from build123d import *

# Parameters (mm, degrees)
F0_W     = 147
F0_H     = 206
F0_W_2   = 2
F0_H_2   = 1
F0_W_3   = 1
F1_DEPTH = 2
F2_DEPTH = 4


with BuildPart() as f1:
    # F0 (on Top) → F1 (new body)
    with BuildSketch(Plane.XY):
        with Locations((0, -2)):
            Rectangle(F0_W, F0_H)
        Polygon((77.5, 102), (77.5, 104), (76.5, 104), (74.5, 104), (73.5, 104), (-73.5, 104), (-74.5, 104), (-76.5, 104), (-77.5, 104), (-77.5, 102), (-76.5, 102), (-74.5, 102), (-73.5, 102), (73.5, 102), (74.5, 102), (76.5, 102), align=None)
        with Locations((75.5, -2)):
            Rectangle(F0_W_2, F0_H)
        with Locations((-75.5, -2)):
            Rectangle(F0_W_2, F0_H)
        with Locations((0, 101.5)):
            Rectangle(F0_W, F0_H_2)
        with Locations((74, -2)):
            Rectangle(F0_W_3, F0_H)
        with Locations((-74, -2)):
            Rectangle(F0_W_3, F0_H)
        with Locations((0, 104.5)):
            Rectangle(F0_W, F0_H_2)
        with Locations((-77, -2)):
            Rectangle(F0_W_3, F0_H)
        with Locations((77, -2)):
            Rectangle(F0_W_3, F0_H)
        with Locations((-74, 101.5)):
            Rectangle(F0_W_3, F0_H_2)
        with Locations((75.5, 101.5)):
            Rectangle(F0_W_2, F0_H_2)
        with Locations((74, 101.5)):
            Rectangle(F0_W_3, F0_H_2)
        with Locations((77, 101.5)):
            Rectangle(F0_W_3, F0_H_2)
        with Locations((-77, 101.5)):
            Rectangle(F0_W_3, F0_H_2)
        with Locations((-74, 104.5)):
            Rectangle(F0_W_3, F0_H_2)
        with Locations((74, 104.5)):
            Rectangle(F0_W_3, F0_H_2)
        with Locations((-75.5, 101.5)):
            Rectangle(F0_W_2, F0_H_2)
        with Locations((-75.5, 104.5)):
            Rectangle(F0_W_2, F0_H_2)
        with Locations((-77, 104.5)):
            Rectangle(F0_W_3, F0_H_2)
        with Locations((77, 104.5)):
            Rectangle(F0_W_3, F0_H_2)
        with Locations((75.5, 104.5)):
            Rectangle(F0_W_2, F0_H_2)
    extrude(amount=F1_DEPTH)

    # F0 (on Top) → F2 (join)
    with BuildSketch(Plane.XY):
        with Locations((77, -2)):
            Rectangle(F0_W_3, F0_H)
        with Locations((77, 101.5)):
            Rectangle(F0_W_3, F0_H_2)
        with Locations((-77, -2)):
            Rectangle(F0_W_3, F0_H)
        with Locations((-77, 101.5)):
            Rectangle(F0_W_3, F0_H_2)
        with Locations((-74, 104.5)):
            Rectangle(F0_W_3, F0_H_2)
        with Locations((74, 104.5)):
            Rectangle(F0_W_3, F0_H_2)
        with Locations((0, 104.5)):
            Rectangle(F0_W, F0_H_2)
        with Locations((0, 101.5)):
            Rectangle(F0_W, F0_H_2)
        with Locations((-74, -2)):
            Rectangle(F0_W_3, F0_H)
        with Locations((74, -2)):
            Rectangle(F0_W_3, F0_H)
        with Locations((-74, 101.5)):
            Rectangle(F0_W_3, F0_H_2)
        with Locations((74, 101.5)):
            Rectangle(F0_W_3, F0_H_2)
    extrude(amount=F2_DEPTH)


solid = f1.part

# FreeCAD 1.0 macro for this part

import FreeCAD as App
import Part
import Sketcher
from FreeCAD import Vector
Q = App.Units.Quantity

doc = App.newDocument("Part")
body = doc.addObject("PartDesign::Body", "Body")

# Sketch on XY plane
sketch1 = body.newObject("Sketcher::SketchObject", "Sketch")
sketch1.AttachmentSupport = (doc.getObject("XY_Plane"), [""])
sketch1.MapMode = "FlatFace"
sketch1.addGeometry(Part.LineSegment(Vector(-78, 105, 0), Vector(-78, -105, 0)), False)
sketch1.addGeometry(Part.LineSegment(Vector(-78, -105, 0), Vector(78, -105, 0)), False)
sketch1.addGeometry(Part.LineSegment(Vector(78, -105, 0), Vector(78, 105, 0)), False)
sketch1.addGeometry(Part.LineSegment(Vector(78, 105, 0), Vector(-78, 105, 0)), False)
sketch1.addConstraint(Sketcher.Constraint("Coincident", 0, 2, 1, 1))
sketch1.addConstraint(Sketcher.Constraint("Coincident", 1, 2, 2, 1))
sketch1.addConstraint(Sketcher.Constraint("Coincident", 2, 2, 3, 1))
sketch1.addConstraint(Sketcher.Constraint("Coincident", 3, 2, 0, 1))
sketch1.addConstraint(Sketcher.Constraint("Vertical", 0))
sketch1.addConstraint(Sketcher.Constraint("Horizontal", 1))
sketch1.addConstraint(Sketcher.Constraint("Vertical", 2))
sketch1.addConstraint(Sketcher.Constraint("Horizontal", 3))
sketch1.addConstraint(Sketcher.Constraint("Symmetric", 0, 2, 2, 2, -1, 1))
sketch1.addConstraint(Sketcher.Constraint("DistanceX", 1, 1, 1, 2, Q("155 mm")))
sketch1.addConstraint(Sketcher.Constraint("DistanceY", 0, 2, 0, 1, Q("210 mm")))
pad1 = body.newObject("PartDesign::Pad", "Pad")
pad1.Profile = sketch1
pad1.Length = 2

# Sketch on XY plane
sketch2 = body.newObject("Sketcher::SketchObject", "Sketch001")
sketch2.AttachmentSupport = (doc.getObject("XY_Plane"), [""])
sketch2.MapMode = "FlatFace"
sketch2.addGeometry(Part.LineSegment(Vector(76.5, -105, 0), Vector(77.5, -105, 0)), False)
sketch2.addGeometry(Part.LineSegment(Vector(77.5, -105, 0), Vector(77.5, 102, 0)), False)
sketch2.addGeometry(Part.LineSegment(Vector(77.5, 102, 0), Vector(76.5, 102, 0)), False)
sketch2.addGeometry(Part.LineSegment(Vector(76.5, 102, 0), Vector(76.5, -105, 0)), False)
sketch2.addGeometry(Part.LineSegment(Vector(-77.5, -105, 0), Vector(-76.5, -105, 0)), False)
sketch2.addGeometry(Part.LineSegment(Vector(-76.5, -105, 0), Vector(-76.5, 102, 0)), False)
sketch2.addGeometry(Part.LineSegment(Vector(-76.5, 102, 0), Vector(-77.5, 102, 0)), False)
sketch2.addGeometry(Part.LineSegment(Vector(-77.5, 102, 0), Vector(-77.5, -105, 0)), False)
sketch2.addGeometry(Part.LineSegment(Vector(-74.5, 105, 0), Vector(-74.5, 104, 0)), False)
sketch2.addGeometry(Part.LineSegment(Vector(-74.5, 104, 0), Vector(74.5, 104, 0)), False)
sketch2.addGeometry(Part.LineSegment(Vector(74.5, 104, 0), Vector(74.5, 105, 0)), False)
sketch2.addGeometry(Part.LineSegment(Vector(74.5, 105, 0), Vector(-74.5, 105, 0)), False)
sketch2.addGeometry(Part.LineSegment(Vector(-73.5, 101, 0), Vector(73.5, 101, 0)), False)
sketch2.addGeometry(Part.LineSegment(Vector(73.5, 101, 0), Vector(73.5, -105, 0)), False)
sketch2.addGeometry(Part.LineSegment(Vector(73.5, -105, 0), Vector(74.5, -105, 0)), False)
sketch2.addGeometry(Part.LineSegment(Vector(74.5, -105, 0), Vector(74.5, 102, 0)), False)
sketch2.addGeometry(Part.LineSegment(Vector(74.5, 102, 0), Vector(-74.5, 102, 0)), False)
sketch2.addGeometry(Part.LineSegment(Vector(-74.5, 102, 0), Vector(-74.5, -105, 0)), False)
sketch2.addGeometry(Part.LineSegment(Vector(-74.5, -105, 0), Vector(-73.5, -105, 0)), False)
sketch2.addGeometry(Part.LineSegment(Vector(-73.5, -105, 0), Vector(-73.5, 101, 0)), False)
sketch2.addConstraint(Sketcher.Constraint("Coincident", 0, 2, 1, 1))
sketch2.addConstraint(Sketcher.Constraint("Coincident", 1, 2, 2, 1))
sketch2.addConstraint(Sketcher.Constraint("Coincident", 2, 2, 3, 1))
sketch2.addConstraint(Sketcher.Constraint("Coincident", 3, 2, 0, 1))
sketch2.addConstraint(Sketcher.Constraint("Coincident", 4, 2, 5, 1))
sketch2.addConstraint(Sketcher.Constraint("Coincident", 5, 2, 6, 1))
sketch2.addConstraint(Sketcher.Constraint("Coincident", 6, 2, 7, 1))
sketch2.addConstraint(Sketcher.Constraint("Coincident", 7, 2, 4, 1))
sketch2.addConstraint(Sketcher.Constraint("Coincident", 8, 2, 9, 1))
sketch2.addConstraint(Sketcher.Constraint("Coincident", 9, 2, 10, 1))
sketch2.addConstraint(Sketcher.Constraint("Coincident", 10, 2, 11, 1))
sketch2.addConstraint(Sketcher.Constraint("Coincident", 11, 2, 8, 1))
sketch2.addConstraint(Sketcher.Constraint("Coincident", 12, 2, 13, 1))
sketch2.addConstraint(Sketcher.Constraint("Coincident", 13, 2, 14, 1))
sketch2.addConstraint(Sketcher.Constraint("Coincident", 14, 2, 15, 1))
sketch2.addConstraint(Sketcher.Constraint("Coincident", 15, 2, 16, 1))
sketch2.addConstraint(Sketcher.Constraint("Coincident", 16, 2, 17, 1))
sketch2.addConstraint(Sketcher.Constraint("Coincident", 17, 2, 18, 1))
sketch2.addConstraint(Sketcher.Constraint("Coincident", 18, 2, 19, 1))
sketch2.addConstraint(Sketcher.Constraint("Coincident", 19, 2, 12, 1))
sketch2.addConstraint(Sketcher.Constraint("Horizontal", 0))
sketch2.addConstraint(Sketcher.Constraint("Vertical", 1))
sketch2.addConstraint(Sketcher.Constraint("Horizontal", 2))
sketch2.addConstraint(Sketcher.Constraint("Vertical", 3))
sketch2.addConstraint(Sketcher.Constraint("Horizontal", 4))
sketch2.addConstraint(Sketcher.Constraint("Vertical", 5))
sketch2.addConstraint(Sketcher.Constraint("Horizontal", 6))
sketch2.addConstraint(Sketcher.Constraint("Vertical", 7))
sketch2.addConstraint(Sketcher.Constraint("Vertical", 8))
sketch2.addConstraint(Sketcher.Constraint("Horizontal", 9))
sketch2.addConstraint(Sketcher.Constraint("Vertical", 10))
sketch2.addConstraint(Sketcher.Constraint("Horizontal", 11))
sketch2.addConstraint(Sketcher.Constraint("Horizontal", 12))
sketch2.addConstraint(Sketcher.Constraint("Vertical", 13))
sketch2.addConstraint(Sketcher.Constraint("Horizontal", 14))
sketch2.addConstraint(Sketcher.Constraint("Vertical", 15))
sketch2.addConstraint(Sketcher.Constraint("Horizontal", 16))
sketch2.addConstraint(Sketcher.Constraint("Vertical", 17))
sketch2.addConstraint(Sketcher.Constraint("Horizontal", 18))
sketch2.addConstraint(Sketcher.Constraint("Vertical", 19))
sketch2.addConstraint(Sketcher.Constraint("Symmetric", 11, 2, 14, 2, -1, 1))
sketch2.addConstraint(Sketcher.Constraint("Symmetric", 10, 2, 17, 2, -1, 1))
sketch2.addConstraint(Sketcher.Constraint("Symmetric", 3, 2, 4, 2, -2))
sketch2.addConstraint(Sketcher.Constraint("Symmetric", 1, 2, 6, 2, -2))
sketch2.addConstraint(Sketcher.Constraint("Horizontal", 7, 2, 13, 2))
sketch2.addConstraint(Sketcher.Constraint("Horizontal", 6, 2, 15, 2))
sketch2.addConstraint(Sketcher.Constraint("Vertical", 10, 2, 14, 2))
sketch2.addConstraint(Sketcher.Constraint("Equal", 6, 14))
sketch2.addConstraint(Sketcher.Constraint("Equal", 14, 18))
sketch2.addConstraint(Sketcher.Constraint("Equal", 18, 8))
sketch2.addConstraint(Sketcher.Constraint("DistanceX", 0, 1, 0, 2, Q("1 mm")))
sketch2.addConstraint(Sketcher.Constraint("DistanceX", 9, 1, 9, 2, Q("149 mm")))
sketch2.addConstraint(Sketcher.Constraint("DistanceY", 1, 1, 1, 2, Q("207 mm")))
sketch2.addConstraint(Sketcher.Constraint("DistanceY", 13, 2, 13, 1, Q("206 mm")))
sketch2.addConstraint(Sketcher.Constraint("DistanceY", 0, 2, -1, 1, Q("105 mm")))
sketch2.addConstraint(Sketcher.Constraint("DistanceX", 4, 2, 3, 2, Q("153 mm")))
pad2 = body.newObject("PartDesign::Pad", "Pad001")
pad2.Profile = sketch2
pad2.Length = 4

doc.recompute()
